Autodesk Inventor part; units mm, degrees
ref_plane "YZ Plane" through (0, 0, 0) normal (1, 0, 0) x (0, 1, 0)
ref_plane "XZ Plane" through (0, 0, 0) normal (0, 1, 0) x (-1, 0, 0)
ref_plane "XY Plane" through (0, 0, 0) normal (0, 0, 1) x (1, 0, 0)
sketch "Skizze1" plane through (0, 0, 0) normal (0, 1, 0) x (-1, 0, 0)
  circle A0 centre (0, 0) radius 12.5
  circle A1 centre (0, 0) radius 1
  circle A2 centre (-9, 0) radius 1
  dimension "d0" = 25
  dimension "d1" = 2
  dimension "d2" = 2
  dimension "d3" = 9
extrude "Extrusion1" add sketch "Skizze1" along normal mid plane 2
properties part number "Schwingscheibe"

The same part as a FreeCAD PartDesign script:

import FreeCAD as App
import Part
import Sketcher

V = App.Vector

doc = App.newDocument("Part")
params = doc.addObject("Spreadsheet::Sheet", "Params")
for row, (alias, value) in enumerate([
    ("sketch1_diameter", "25 mm"),
    ("sketch1_diameter2", "2 mm"),
    ("pad1_length", "2 mm"),
], start=1):
    params.set(f"A{row}", alias)
    params.set(f"B{row}", "=" + value)
    params.setAlias(f"B{row}", alias)

body = doc.addObject("PartDesign::Body", "Body")

# Sketch on XZ plane
sketch1 = body.newObject("Sketcher::SketchObject", "Sketch")
sketch1.AttachmentSupport = (doc.getObject("XZ_Plane"), [""])
sketch1.MapMode = "FlatFace"
sketch1.addGeometry(Part.Circle(V(0, 0, 0), V(0, 0, 1), 12.5), False)
sketch1.addGeometry(Part.Circle(V(9, 0, 0), V(0, 0, 1), 1), False)
sketch1.addGeometry(Part.Circle(V(0, 0, 0), V(0, 0, 1), 1), False)
sketch1.addConstraint(Sketcher.Constraint("Coincident", 0, 3, -1, 1))
sketch1.addConstraint(Sketcher.Constraint("Coincident", 2, 3, -1, 1))
sketch1.addConstraint(Sketcher.Constraint("Equal", 1, 2))
sketch1.addConstraint(Sketcher.Constraint("PointOnObject", 1, 3, -1))
sketch1.addConstraint(Sketcher.Constraint("Diameter", 0, 25.0))
sketch1.addConstraint(Sketcher.Constraint("Diameter", 1, 2.0))
sketch1.addConstraint(Sketcher.Constraint("DistanceX", -1, 1, 1, 3, 9.0))
sketch1.setExpression("Constraints[4]", "Params.sketch1_diameter")
sketch1.setExpression("Constraints[5]", "Params.sketch1_diameter2")
pad1 = body.newObject("PartDesign::Pad", "Pad")
pad1.Profile = sketch1
pad1.setExpression("Length", "Params.pad1_length")
pad1.Midplane = True

doc.recompute()
